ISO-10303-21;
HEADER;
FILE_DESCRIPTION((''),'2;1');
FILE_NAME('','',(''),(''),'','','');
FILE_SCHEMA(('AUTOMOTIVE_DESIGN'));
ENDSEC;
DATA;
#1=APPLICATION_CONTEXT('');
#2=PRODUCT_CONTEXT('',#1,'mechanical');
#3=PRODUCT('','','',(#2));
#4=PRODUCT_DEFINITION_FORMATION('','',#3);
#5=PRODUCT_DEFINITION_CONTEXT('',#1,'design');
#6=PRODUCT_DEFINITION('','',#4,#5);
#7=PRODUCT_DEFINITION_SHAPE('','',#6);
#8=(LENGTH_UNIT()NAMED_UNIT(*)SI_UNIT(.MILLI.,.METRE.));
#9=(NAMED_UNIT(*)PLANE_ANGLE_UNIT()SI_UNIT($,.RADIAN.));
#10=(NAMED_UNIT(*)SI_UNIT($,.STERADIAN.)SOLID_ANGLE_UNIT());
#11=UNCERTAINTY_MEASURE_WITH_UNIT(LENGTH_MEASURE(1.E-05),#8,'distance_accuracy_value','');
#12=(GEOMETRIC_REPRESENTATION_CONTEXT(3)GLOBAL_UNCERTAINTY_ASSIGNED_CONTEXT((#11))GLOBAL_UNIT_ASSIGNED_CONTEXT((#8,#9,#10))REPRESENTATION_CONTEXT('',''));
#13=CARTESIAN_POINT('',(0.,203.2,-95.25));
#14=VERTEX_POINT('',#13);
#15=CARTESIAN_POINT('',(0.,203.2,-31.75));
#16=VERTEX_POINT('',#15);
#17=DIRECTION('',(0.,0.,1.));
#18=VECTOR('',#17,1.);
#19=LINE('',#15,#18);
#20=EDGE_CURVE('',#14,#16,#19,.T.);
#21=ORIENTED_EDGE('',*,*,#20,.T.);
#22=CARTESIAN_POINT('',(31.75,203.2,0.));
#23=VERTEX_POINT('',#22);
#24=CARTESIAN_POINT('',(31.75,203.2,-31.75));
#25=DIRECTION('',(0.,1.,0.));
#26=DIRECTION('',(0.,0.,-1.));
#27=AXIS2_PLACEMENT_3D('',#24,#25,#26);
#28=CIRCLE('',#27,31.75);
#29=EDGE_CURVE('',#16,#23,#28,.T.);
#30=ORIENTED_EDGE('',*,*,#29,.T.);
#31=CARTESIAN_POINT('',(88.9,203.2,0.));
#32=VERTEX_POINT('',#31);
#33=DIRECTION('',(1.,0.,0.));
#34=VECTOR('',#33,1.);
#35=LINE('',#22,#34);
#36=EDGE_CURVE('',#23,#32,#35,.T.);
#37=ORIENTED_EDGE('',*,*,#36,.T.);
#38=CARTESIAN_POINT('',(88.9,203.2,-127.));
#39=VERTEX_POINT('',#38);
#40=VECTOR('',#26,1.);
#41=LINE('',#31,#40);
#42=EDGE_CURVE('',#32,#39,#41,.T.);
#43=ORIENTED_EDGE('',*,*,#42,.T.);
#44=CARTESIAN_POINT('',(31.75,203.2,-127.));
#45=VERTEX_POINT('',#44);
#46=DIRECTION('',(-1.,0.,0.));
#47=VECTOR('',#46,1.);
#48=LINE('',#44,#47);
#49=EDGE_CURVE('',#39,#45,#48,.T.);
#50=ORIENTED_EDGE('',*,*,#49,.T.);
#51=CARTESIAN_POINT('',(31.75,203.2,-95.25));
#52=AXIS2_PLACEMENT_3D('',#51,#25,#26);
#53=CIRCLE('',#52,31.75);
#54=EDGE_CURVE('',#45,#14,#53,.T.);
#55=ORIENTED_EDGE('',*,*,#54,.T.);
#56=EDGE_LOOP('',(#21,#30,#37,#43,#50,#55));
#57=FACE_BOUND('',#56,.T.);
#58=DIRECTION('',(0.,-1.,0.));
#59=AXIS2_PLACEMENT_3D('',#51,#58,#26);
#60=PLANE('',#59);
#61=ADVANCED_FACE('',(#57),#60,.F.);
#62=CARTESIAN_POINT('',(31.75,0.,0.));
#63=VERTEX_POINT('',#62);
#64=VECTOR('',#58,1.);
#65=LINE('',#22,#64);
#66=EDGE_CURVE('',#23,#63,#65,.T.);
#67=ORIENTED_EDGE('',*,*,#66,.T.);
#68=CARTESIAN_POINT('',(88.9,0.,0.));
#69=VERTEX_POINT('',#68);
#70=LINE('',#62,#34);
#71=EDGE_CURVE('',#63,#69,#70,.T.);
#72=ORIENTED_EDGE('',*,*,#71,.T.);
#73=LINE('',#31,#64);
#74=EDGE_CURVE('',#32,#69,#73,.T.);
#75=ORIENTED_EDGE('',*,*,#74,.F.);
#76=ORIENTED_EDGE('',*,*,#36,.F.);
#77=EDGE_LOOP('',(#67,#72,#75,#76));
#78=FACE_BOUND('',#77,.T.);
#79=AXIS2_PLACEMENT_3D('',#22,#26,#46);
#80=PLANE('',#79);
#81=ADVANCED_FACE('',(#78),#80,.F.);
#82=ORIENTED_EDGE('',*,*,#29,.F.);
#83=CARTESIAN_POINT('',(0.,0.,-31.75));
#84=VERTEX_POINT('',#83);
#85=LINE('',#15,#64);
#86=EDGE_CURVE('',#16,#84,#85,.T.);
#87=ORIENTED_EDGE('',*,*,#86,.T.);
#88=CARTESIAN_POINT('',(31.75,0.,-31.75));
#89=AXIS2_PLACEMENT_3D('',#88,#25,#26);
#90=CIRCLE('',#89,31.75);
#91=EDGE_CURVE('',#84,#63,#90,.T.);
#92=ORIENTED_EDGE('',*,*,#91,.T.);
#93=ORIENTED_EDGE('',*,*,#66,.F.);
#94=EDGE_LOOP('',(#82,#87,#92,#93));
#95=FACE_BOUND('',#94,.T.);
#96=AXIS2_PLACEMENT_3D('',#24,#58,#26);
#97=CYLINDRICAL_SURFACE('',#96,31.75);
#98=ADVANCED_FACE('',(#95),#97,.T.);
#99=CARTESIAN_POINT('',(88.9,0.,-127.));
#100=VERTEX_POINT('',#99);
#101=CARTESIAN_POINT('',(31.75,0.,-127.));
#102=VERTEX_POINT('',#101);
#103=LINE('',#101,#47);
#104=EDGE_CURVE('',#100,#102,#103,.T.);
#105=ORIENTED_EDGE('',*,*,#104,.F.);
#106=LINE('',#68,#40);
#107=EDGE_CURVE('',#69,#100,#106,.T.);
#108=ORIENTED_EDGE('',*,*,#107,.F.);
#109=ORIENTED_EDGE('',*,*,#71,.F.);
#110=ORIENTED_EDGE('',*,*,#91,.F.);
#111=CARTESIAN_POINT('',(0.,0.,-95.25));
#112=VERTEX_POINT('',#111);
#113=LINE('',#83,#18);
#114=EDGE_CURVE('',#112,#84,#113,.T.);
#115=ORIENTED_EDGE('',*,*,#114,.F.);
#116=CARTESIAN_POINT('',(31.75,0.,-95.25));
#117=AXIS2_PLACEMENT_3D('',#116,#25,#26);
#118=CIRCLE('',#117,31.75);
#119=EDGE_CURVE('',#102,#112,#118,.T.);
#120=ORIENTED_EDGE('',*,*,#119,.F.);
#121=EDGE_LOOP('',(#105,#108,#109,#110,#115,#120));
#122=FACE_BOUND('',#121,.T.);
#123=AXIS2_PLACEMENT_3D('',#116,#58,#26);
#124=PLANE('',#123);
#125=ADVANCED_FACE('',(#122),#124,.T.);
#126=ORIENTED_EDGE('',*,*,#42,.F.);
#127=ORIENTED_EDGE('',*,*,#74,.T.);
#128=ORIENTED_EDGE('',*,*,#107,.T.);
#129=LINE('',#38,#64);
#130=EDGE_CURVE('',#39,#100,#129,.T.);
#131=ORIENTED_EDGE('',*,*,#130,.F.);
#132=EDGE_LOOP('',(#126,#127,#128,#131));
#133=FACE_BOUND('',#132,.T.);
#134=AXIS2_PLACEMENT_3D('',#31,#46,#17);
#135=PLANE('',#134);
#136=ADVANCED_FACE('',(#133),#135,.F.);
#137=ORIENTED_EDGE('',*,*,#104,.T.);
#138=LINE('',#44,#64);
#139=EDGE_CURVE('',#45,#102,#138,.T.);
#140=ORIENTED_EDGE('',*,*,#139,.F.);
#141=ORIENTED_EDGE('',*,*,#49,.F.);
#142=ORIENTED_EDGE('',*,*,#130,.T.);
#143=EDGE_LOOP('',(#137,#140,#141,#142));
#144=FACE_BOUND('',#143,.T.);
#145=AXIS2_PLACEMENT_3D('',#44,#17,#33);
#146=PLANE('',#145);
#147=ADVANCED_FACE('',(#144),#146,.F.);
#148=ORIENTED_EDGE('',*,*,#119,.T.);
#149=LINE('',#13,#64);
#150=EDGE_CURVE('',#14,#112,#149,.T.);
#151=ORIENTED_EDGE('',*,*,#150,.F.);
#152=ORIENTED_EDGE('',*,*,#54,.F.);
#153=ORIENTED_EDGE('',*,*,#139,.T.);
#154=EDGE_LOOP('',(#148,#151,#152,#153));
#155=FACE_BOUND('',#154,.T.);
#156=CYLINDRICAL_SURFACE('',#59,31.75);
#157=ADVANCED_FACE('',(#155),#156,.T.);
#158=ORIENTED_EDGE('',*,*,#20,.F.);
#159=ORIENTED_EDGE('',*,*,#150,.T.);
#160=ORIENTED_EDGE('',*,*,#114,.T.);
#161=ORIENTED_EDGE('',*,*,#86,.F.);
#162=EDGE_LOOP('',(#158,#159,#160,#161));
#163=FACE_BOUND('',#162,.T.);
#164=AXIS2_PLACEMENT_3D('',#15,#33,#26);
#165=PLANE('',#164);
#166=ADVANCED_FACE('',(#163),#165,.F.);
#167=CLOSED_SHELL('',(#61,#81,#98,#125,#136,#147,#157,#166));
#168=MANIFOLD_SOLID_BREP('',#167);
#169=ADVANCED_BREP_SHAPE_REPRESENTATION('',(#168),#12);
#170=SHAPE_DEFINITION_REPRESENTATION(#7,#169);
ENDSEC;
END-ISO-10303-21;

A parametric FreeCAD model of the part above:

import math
import FreeCAD as App
import Part
import Sketcher
from FreeCAD import Vector
Q = App.Units.Quantity

doc = App.newDocument("Part")
params = doc.addObject("Spreadsheet::Sheet", "Params")
for row, (alias, value) in enumerate([
    ("sketch1_height", "5 in"),
    ("sketch1_radius", "1.25 in"),
    ("sketch1_width", "2.25 in"),
    ("pad1_length", "8 in"),
], start=1):
    params.set(f"A{row}", alias)
    params.set(f"B{row}", "=" + value)
    params.setAlias(f"B{row}", alias)

body = doc.addObject("PartDesign::Body", "Body")

sketch1 = body.newObject("Sketcher::SketchObject", "Sketch")
sketch1.AttachmentSupport = (doc.getObject("XZ_Plane"), [""])
sketch1.MapMode = "FlatFace"
sketch1.addGeometry(Part.LineSegment(Vector(31.75, 0, 0), Vector(88.9, 0, 0)), False)
sketch1.addGeometry(Part.LineSegment(Vector(88.9, 0, 0), Vector(88.9, -127, 0)), False)
sketch1.addGeometry(Part.LineSegment(Vector(88.9, -127, 0), Vector(31.75, -127, 0)), False)
sketch1.addGeometry(Part.ArcOfCircle(Part.Circle(Vector(31.75, -95.25, 0), Vector(0, 0, 1), 31.75), math.radians(180), math.radians(270)), False)
sketch1.addGeometry(Part.LineSegment(Vector(0, -95.25, 0), Vector(0, -31.75, 0)), False)
sketch1.addGeometry(Part.ArcOfCircle(Part.Circle(Vector(31.75, -31.75, 0), Vector(0, 0, 1), 31.75), math.radians(90), math.radians(180)), False)
sketch1.addConstraint(Sketcher.Constraint("Coincident", 0, 2, 1, 1))
sketch1.addConstraint(Sketcher.Constraint("Coincident", 1, 2, 2, 1))
sketch1.addConstraint(Sketcher.Constraint("Tangent", 2, 2, 3, 2))
sketch1.addConstraint(Sketcher.Constraint("Tangent", 3, 1, 4, 1))
sketch1.addConstraint(Sketcher.Constraint("Tangent", 4, 2, 5, 2))
sketch1.addConstraint(Sketcher.Constraint("Tangent", 5, 1, 0, 1))
sketch1.addConstraint(Sketcher.Constraint("Horizontal", 0))
sketch1.addConstraint(Sketcher.Constraint("Vertical", 1))
sketch1.addConstraint(Sketcher.Constraint("Horizontal", 2))
sketch1.addConstraint(Sketcher.Constraint("Vertical", 4))
sketch1.addConstraint(Sketcher.Constraint("Equal", 3, 5))
sketch1.addConstraint(Sketcher.Constraint("PointOnObject", 0, 2, -1))
sketch1.addConstraint(Sketcher.Constraint("PointOnObject", 3, 1, -2))
sketch1.addConstraint(Sketcher.Constraint("DistanceY", 1, 2, 1, 1, Q("5 in")))
sketch1.addConstraint(Sketcher.Constraint("Radius", 3, Q("1.25 in")))
sketch1.addConstraint(Sketcher.Constraint("DistanceX", 0, 1, 0, 2, Q("2.25 in")))
sketch1.setExpression("Constraints[13]", "Params.sketch1_height")
sketch1.setExpression("Constraints[14]", "Params.sketch1_radius")
sketch1.setExpression("Constraints[15]", "Params.sketch1_width")
pad1 = body.newObject("PartDesign::Pad", "Pad")
pad1.Profile = sketch1
pad1.setExpression("Length", "Params.pad1_length")
pad1.Reversed = True

doc.recompute()
